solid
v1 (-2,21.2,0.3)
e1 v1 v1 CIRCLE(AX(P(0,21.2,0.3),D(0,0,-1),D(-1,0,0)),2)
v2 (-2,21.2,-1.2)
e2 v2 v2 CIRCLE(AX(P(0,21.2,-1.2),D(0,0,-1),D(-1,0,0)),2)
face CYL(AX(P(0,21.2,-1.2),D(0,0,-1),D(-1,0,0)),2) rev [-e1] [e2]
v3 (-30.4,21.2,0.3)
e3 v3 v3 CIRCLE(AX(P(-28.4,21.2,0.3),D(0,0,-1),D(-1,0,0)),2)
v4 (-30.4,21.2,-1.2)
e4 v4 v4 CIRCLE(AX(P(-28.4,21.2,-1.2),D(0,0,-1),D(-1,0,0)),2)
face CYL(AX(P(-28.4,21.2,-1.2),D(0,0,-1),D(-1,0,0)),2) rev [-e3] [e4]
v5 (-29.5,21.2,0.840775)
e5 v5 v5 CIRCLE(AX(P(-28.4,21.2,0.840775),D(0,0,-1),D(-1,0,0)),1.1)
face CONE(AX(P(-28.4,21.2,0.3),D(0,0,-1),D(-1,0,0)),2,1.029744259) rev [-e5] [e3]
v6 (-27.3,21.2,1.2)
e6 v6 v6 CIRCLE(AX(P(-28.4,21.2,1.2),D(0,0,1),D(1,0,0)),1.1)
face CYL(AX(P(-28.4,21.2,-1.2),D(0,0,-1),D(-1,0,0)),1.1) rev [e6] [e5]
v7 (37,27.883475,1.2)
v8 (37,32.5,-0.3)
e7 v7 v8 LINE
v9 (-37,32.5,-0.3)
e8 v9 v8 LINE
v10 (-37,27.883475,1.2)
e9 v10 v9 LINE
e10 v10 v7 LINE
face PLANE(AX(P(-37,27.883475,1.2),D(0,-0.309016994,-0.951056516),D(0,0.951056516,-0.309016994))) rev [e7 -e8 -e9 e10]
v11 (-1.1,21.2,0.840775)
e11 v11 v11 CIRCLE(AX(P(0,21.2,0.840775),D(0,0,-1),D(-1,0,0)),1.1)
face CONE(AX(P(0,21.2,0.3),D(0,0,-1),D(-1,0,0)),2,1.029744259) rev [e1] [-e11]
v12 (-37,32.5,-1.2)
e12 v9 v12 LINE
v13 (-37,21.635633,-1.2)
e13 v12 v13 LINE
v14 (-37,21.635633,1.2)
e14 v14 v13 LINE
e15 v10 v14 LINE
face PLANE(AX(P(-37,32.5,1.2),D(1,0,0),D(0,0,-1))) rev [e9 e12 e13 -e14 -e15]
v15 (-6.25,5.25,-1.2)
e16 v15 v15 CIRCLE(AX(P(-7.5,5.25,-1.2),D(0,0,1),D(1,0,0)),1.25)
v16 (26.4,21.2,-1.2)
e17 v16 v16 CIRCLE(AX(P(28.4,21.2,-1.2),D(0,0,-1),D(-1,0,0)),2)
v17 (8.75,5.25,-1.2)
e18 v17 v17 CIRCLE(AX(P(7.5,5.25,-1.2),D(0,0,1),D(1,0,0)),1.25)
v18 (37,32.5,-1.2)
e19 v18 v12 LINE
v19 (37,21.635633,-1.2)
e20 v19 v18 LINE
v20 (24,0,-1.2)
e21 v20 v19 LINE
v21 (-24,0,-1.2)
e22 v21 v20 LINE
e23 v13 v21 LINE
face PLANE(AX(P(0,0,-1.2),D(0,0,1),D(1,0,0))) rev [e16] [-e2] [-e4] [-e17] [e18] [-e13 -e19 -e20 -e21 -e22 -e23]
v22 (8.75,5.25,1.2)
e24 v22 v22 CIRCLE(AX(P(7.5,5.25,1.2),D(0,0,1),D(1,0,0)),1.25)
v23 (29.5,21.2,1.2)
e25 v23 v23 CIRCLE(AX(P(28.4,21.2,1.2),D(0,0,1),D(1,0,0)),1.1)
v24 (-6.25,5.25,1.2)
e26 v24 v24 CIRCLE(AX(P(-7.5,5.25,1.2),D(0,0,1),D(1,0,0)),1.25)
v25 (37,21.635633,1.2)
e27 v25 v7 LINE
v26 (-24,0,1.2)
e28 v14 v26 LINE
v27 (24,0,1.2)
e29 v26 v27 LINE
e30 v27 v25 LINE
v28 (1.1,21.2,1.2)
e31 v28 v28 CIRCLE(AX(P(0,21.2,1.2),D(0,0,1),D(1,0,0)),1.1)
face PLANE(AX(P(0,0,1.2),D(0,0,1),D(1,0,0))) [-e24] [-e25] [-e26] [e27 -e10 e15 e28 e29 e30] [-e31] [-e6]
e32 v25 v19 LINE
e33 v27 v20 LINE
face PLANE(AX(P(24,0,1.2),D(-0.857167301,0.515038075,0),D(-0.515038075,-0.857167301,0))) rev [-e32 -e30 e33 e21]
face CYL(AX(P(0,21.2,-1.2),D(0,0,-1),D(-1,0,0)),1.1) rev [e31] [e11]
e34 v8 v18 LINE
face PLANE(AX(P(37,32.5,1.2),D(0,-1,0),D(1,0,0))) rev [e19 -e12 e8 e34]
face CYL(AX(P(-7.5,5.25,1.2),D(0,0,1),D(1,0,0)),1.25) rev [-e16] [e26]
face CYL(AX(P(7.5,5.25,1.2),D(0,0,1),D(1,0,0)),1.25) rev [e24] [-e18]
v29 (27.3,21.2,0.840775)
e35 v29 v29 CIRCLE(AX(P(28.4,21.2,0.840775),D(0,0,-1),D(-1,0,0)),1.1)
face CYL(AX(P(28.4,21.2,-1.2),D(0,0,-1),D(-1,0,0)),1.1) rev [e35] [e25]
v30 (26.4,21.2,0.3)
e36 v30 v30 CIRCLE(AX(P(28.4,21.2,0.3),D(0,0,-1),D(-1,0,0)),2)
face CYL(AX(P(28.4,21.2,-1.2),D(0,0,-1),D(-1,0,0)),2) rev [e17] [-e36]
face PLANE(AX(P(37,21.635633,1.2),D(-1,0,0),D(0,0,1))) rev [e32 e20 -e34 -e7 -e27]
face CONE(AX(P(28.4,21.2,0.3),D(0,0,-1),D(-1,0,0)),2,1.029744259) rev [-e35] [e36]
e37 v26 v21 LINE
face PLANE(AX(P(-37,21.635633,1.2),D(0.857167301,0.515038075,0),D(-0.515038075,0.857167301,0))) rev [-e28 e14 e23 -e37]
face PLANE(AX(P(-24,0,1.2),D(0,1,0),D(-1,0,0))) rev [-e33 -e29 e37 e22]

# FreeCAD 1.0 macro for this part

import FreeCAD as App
import Part
import Sketcher
Q = App.Units.Quantity

doc = App.newDocument("Part")
body = doc.addObject("PartDesign::Body", "Body")

# Sketch on XY plane
sketch1 = body.newObject("Sketcher::SketchObject", "Sketch")
sketch1.AttachmentSupport = (doc.getObject("XY_Plane"), [""])
sketch1.MapMode = "FlatFace"
sketch1.addGeometry([
    Part.LineSegment(App.Vector(-24, 0, 0), App.Vector(24, 0, 0)),  # 0
    Part.LineSegment(App.Vector(24, 0, 0), App.Vector(37, 22, 0)),  # 1
    Part.LineSegment(App.Vector(37, 22, 0), App.Vector(37, 32, 0)),  # 2
    Part.LineSegment(App.Vector(37, 32, 0), App.Vector(-37, 32, 0)),  # 3
    Part.LineSegment(App.Vector(-37, 32, 0), App.Vector(-37, 22, 0)),  # 4
    Part.LineSegment(App.Vector(-37, 22, 0), App.Vector(-24, 0, 0)),  # 5
], False)
sketch1.addConstraint([
    Sketcher.Constraint("Coincident", 0, 2, 1, 1),
    Sketcher.Constraint("Coincident", 1, 2, 2, 1),
    Sketcher.Constraint("Coincident", 2, 2, 3, 1),
    Sketcher.Constraint("Coincident", 3, 2, 4, 1),
    Sketcher.Constraint("Coincident", 4, 2, 5, 1),
    Sketcher.Constraint("Coincident", 5, 2, 0, 1),
    Sketcher.Constraint("Horizontal", 0),
    Sketcher.Constraint("Vertical", 2),
    Sketcher.Constraint("Horizontal", 3),
    Sketcher.Constraint("Vertical", 4),
    Sketcher.Constraint("Symmetric", 0, 2, 5, 2, -1, 1),
    Sketcher.Constraint("Symmetric", 1, 2, 4, 2, -2),
    Sketcher.Constraint("DistanceX", 0, 1, 0, 2, 48.0),
    Sketcher.Constraint("DistanceX", 3, 2, 3, 1, 74.0),
    Sketcher.Constraint("Angle", 1, Q("59 deg")),
    Sketcher.Constraint("DistanceY", -1, 1, 2, 2, 32.5),
])
pad1 = body.newObject("PartDesign::Pad", "Pad")
pad1.Profile = sketch1
pad1.Length = 2.4
pad1.Midplane = True

# Sketch on YZ plane
sketch2 = body.newObject("Sketcher::SketchObject", "Sketch001")
sketch2.AttachmentSupport = (doc.getObject("YZ_Plane"), [""])
sketch2.MapMode = "FlatFace"
sketch2.AttachmentOffset = App.Placement(App.Vector(0, 0, 37), App.Rotation())
sketch2.addGeometry([
    Part.LineSegment(App.Vector(27.9, 1.2, 0), App.Vector(32.5, -0.3, 0)),
    Part.LineSegment(App.Vector(32.5, -0.3, 0), App.Vector(32.5, 1.2, 0)),
    Part.LineSegment(App.Vector(32.5, 1.2, 0), App.Vector(27.9, 1.2, 0)),
], False)
sketch2.addConstraint([
    Sketcher.Constraint("Coincident", 0, 2, 1, 1),
    Sketcher.Constraint("Coincident", 1, 2, 2, 1),
    Sketcher.Constraint("Coincident", 2, 2, 0, 1),
    Sketcher.Constraint("Vertical", 1),
    Sketcher.Constraint("Horizontal", 2),
    Sketcher.Constraint("Angle", 0, Q("-18 deg")),
    Sketcher.Constraint("DistanceY", 1, 1, 1, 2, 1.5),
    Sketcher.Constraint("DistanceX", -1, 1, 0, 2, 32.5),
    Sketcher.Constraint("DistanceY", 0, 2, -1, 1, 0.3),
])
pocket1 = body.newObject("PartDesign::Pocket", "Pocket")
pocket1.Profile = sketch2
pocket1.Type = "ThroughAll"

# Sketch on XY plane
sketch3 = body.newObject("Sketcher::SketchObject", "Sketch002")
sketch3.AttachmentSupport = (doc.getObject("XY_Plane"), [""])
sketch3.MapMode = "FlatFace"
sketch3.AttachmentOffset = App.Placement(App.Vector(0, 0, 1.2), App.Rotation())
sketch3.addGeometry([
    Part.Circle(App.Vector(-7.5, 5.2, 0), App.Vector(0, 0, 1), 1.2),
    Part.Circle(App.Vector(7.5, 5.2, 0), App.Vector(0, 0, 1), 1.2),
], False)
sketch3.addConstraint([
    Sketcher.Constraint("Equal", 0, 1),
    Sketcher.Constraint("Symmetric", 0, 3, 1, 3, -2),
    Sketcher.Constraint("Diameter", 0, 2.5),
    Sketcher.Constraint("DistanceX", 0, 3, 1, 3, 15.0),
    Sketcher.Constraint("DistanceY", -1, 1, 0, 3, 5.25),
])
doc.recompute()
hole = body.newObject("PartDesign::Hole", "Hole")
hole.Profile = sketch3
hole.ThreadType = "None"
hole.Diameter = 2.5
hole.DepthType = "Dimension"
hole.Depth = 10
hole.DrillPoint = "Angled"
hole.DrillPointAngle = 118

# Sketch on YZ plane
sketch4 = body.newObject("Sketcher::SketchObject", "Sketch003")
sketch4.AttachmentSupport = (doc.getObject("YZ_Plane"), [""])
sketch4.MapMode = "FlatFace"
sketch4.AttachmentOffset = App.Placement(App.Vector(0, 0, 28.4), App.Rotation())
sketch4.addGeometry([
    Part.LineSegment(App.Vector(21.2, 1.2, 0), App.Vector(21.2, -1.2, 0)),  # 0
    Part.LineSegment(App.Vector(21.2, -1.2, 0), App.Vector(23.2, -1.2, 0)),  # 1
    Part.LineSegment(App.Vector(23.2, -1.2, 0), App.Vector(23.2, 0.3, 0)),  # 2
    Part.LineSegment(App.Vector(23.2, 0.3, 0), App.Vector(22.3, 0.84, 0)),  # 3
    Part.LineSegment(App.Vector(22.3, 0.84, 0), App.Vector(22.3, 1.2, 0)),  # 4
    Part.LineSegment(App.Vector(22.3, 1.2, 0), App.Vector(21.2, 1.2, 0)),  # 5
], False)
sketch4.addGeometry(Part.LineSegment(App.Vector(21.2, -1.2, 0), App.Vector(21.2, 1.2, 0)), True)  # axis
sketch4.addConstraint([
    Sketcher.Constraint("Coincident", 0, 2, 1, 1),
    Sketcher.Constraint("Coincident", 1, 2, 2, 1),
    Sketcher.Constraint("Coincident", 2, 2, 3, 1),
    Sketcher.Constraint("Coincident", 3, 2, 4, 1),
    Sketcher.Constraint("Coincident", 4, 2, 5, 1),
    Sketcher.Constraint("Coincident", 5, 2, 0, 1),
    Sketcher.Constraint("Vertical", 0),
    Sketcher.Constraint("Horizontal", 1),
    Sketcher.Constraint("Vertical", 2),
    Sketcher.Constraint("Vertical", 4),
    Sketcher.Constraint("Horizontal", 5),
    Sketcher.Constraint("Vertical", 6),
    Sketcher.Constraint("Coincident", 6, 1, 0, 2),
    Sketcher.Constraint("Horizontal", 4, 2, 6, 2),
    Sketcher.Constraint("DistanceX", 1, 1, 1, 2, 2.0),
    Sketcher.Constraint("Angle", 3, Q("149 deg")),
    Sketcher.Constraint("DistanceX", 5, 2, 5, 1, 1.1),
    Sketcher.Constraint("DistanceY", 0, 2, 0, 1, 2.4),
    Sketcher.Constraint("DistanceY", 2, 1, 2, 2, 1.5),
    Sketcher.Constraint("DistanceX", -1, 1, 0, 2, 21.2),
    Sketcher.Constraint("DistanceY", 0, 2, -1, 1, 1.2),
])
groove = body.newObject("PartDesign::Groove", "Groove")
groove.Profile = sketch4
groove.ReferenceAxis = (sketch4, ["Axis0"])
groove.Angle = 360
doc.recompute()

linearpattern = body.newObject("PartDesign::LinearPattern", "LinearPattern")
linearpattern.Originals = [groove]
linearpattern.Direction = (doc.getObject("X_Axis"), [""])
linearpattern.Mode = "offset"
linearpattern.Offset = 28.4
linearpattern.Occurrences = 2
linearpattern.Reversed = True
body.Tip = linearpattern
doc.recompute()

linearpattern2 = body.newObject("PartDesign::LinearPattern", "LinearPattern001")
linearpattern2.Originals = [groove]
linearpattern2.Direction = (doc.getObject("X_Axis"), [""])
linearpattern2.Mode = "offset"
linearpattern2.Offset = 56.8
linearpattern2.Occurrences = 2
linearpattern2.Reversed = True
body.Tip = linearpattern2

doc.recompute()
